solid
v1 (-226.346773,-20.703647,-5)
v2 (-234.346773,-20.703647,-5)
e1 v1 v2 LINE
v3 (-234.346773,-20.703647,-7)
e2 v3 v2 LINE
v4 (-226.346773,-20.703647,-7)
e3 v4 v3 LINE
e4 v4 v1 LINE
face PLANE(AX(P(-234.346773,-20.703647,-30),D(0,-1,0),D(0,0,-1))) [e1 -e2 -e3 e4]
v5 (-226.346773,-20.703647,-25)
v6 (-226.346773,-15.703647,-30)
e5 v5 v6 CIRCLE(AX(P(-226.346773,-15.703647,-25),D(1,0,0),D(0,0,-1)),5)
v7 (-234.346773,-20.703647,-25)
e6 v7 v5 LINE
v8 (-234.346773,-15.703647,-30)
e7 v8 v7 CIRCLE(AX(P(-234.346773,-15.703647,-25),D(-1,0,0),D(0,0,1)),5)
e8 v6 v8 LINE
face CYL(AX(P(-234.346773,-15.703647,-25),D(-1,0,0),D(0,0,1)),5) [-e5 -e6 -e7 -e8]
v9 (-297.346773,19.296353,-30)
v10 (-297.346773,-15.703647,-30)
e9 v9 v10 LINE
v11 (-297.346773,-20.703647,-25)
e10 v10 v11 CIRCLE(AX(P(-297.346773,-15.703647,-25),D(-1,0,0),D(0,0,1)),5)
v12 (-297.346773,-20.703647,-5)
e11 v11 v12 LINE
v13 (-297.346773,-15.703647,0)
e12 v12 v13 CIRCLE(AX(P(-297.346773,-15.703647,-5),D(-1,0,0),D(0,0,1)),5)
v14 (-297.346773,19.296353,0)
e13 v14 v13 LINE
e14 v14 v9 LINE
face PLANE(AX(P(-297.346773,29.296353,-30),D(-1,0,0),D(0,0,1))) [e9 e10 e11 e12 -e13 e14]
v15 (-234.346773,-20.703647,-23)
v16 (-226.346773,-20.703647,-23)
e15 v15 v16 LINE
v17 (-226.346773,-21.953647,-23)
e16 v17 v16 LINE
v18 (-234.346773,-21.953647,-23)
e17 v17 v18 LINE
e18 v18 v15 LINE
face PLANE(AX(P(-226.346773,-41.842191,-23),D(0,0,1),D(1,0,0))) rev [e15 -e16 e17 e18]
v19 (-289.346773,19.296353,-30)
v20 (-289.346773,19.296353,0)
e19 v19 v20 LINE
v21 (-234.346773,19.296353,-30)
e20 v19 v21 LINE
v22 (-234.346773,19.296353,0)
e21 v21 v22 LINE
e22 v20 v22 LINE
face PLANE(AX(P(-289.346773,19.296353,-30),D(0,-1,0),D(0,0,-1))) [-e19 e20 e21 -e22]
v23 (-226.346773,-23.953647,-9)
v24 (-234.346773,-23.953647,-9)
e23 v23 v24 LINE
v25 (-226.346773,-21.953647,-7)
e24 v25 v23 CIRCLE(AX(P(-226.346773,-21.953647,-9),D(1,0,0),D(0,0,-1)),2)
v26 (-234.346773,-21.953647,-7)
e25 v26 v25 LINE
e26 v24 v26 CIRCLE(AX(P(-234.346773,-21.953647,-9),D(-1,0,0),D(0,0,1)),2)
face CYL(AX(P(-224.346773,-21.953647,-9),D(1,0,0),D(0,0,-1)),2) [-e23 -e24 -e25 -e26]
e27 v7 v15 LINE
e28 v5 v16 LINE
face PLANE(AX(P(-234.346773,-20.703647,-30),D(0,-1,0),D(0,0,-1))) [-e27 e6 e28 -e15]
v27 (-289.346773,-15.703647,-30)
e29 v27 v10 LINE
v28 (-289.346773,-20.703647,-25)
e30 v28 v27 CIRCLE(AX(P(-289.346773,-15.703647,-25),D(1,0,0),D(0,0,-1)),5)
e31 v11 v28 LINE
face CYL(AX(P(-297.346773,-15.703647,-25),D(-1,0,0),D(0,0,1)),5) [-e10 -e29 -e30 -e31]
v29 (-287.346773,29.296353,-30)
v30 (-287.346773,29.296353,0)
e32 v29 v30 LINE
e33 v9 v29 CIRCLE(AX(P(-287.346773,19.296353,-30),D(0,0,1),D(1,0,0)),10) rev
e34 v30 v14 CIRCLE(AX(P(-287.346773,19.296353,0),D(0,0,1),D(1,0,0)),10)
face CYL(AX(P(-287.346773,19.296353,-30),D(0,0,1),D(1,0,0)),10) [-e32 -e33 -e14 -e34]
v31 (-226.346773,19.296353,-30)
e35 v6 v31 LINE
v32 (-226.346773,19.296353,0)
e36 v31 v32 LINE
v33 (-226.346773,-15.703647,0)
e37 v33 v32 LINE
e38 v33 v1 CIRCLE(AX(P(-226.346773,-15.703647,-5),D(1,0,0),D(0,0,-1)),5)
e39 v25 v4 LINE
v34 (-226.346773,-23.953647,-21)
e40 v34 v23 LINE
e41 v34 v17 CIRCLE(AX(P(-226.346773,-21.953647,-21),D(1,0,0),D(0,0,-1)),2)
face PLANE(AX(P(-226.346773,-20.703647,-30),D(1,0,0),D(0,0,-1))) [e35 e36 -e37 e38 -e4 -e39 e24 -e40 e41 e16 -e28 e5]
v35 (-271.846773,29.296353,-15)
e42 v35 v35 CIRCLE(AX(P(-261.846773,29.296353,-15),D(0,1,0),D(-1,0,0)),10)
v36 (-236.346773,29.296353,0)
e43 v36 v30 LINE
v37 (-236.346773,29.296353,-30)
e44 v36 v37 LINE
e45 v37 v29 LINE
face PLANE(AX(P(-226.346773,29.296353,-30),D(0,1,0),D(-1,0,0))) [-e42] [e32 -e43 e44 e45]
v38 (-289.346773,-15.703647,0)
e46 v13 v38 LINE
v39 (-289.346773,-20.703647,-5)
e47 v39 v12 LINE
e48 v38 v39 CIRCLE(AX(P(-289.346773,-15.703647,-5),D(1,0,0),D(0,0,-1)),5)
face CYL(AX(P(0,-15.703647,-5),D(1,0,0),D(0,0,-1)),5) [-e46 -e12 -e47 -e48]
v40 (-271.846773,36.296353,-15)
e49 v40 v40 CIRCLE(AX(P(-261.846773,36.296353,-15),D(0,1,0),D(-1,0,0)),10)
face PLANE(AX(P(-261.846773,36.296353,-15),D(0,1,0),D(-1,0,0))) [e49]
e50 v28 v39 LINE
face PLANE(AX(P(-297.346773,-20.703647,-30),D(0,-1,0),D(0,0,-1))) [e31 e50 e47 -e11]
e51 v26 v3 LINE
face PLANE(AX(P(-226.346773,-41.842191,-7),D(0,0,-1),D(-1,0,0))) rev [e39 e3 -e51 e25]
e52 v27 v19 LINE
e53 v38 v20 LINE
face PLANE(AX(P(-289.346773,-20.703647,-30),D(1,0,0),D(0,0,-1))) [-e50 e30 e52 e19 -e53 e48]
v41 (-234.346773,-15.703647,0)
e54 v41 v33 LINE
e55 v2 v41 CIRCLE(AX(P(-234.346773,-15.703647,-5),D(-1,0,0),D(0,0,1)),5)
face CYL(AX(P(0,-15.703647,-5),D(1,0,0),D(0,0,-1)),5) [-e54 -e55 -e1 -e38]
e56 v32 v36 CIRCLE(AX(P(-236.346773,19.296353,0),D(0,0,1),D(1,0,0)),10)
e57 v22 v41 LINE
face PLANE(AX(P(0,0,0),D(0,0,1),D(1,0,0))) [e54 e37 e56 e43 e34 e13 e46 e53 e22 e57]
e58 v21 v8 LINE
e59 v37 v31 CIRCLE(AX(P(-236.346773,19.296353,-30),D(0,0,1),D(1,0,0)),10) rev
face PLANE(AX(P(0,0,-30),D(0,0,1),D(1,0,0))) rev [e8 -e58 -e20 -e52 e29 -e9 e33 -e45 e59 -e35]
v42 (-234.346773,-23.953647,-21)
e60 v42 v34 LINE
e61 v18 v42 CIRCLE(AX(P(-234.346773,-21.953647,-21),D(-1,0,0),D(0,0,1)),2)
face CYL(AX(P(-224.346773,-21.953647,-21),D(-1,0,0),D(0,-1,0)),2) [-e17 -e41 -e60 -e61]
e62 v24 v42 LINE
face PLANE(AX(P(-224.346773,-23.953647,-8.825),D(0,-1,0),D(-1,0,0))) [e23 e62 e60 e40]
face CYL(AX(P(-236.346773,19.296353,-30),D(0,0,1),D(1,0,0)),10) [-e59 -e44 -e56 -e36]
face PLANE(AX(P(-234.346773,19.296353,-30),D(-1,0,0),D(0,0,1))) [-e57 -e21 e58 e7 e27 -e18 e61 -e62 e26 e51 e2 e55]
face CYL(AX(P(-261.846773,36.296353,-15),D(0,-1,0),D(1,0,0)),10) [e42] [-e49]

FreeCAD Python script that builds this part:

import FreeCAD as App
import Part
import Sketcher

V = App.Vector


def edges_at(feature, points):
    """Names of the edges that pass closest to the given points."""
    edges = feature.Shape.Edges
    near = lambda p: min(range(len(edges)), key=lambda i: edges[i].distToShape(Part.Vertex(*p))[0])
    return sorted({f"Edge{near(p) + 1}" for p in points})


def add_polygon(sketch, points):
    """Adds a closed chain of lines whose ends are joined by coincident constraints."""
    first, n = sketch.GeometryCount, len(points)
    for a, b in zip(points, points[1:] + points[:1]):
        sketch.addGeometry(Part.LineSegment(App.Vector(*a, 0), App.Vector(*b, 0)), False)
    for i in range(n):
        sketch.addConstraint(Sketcher.Constraint("Coincident", first + i, 2, first + (i + 1) % n, 1))

doc = App.newDocument("Part")
body = doc.addObject("PartDesign::Body", "Body")

sketch1 = body.newObject("Sketcher::SketchObject", "Sketch")
sketch1.AttachmentSupport = (doc.getObject("XY_Plane"), [""])
sketch1.MapMode = "FlatFace"
add_polygon(sketch1, [(-289.346773, -20.703647), (-289.346773, 19.296353), (-234.346773, 19.296353), (-234.346773, -20.703647), (-226.346773, -20.703647), (-226.346773, 29.296353), (-297.346773, 29.296353), (-297.346773, -20.703647)])
sketch1.addConstraint(Sketcher.Constraint("Vertical", 0))
sketch1.addConstraint(Sketcher.Constraint("Horizontal", 1))
sketch1.addConstraint(Sketcher.Constraint("Vertical", 2))
sketch1.addConstraint(Sketcher.Constraint("Horizontal", 3))
sketch1.addConstraint(Sketcher.Constraint("Vertical", 4))
sketch1.addConstraint(Sketcher.Constraint("Horizontal", 5))
sketch1.addConstraint(Sketcher.Constraint("Vertical", 6))
sketch1.addConstraint(Sketcher.Constraint("Horizontal", 7))
sketch1.addConstraint(Sketcher.Constraint("Horizontal", 3, 2, 6, 2))
sketch1.addConstraint(Sketcher.Constraint("Equal", 3, 7))
sketch1.addConstraint(Sketcher.Constraint("DistanceX", 1, 1, 1, 2, 55.0))
sketch1.addConstraint(Sketcher.Constraint("DistanceX", 3, 1, 3, 2, 8.0))
sketch1.addConstraint(Sketcher.Constraint("DistanceY", 0, 1, 0, 2, 40.0))
sketch1.addConstraint(Sketcher.Constraint("DistanceY", 4, 1, 4, 2, 50.0))
sketch1.addConstraint(Sketcher.Constraint("DistanceX", 0, 2, -1, 1, 289.346773))
sketch1.addConstraint(Sketcher.Constraint("DistanceY", -1, 1, 0, 2, 19.296353))
pad1 = body.newObject("PartDesign::Pad", "Pad")
pad1.Profile = sketch1
pad1.Length = 30
pad1.Reversed = True

sketch2 = body.newObject("Sketcher::SketchObject", "Sketch001")
sketch2.AttachmentSupport = (doc.getObject("XZ_Plane"), [""])
sketch2.MapMode = "FlatFace"
sketch2.AttachmentOffset = App.Placement(V(0, 0, -29.296353), App.Rotation())
sketch2.addGeometry(Part.Circle(V(-261.846773, -15, 0), V(0, 0, 1), 10), False)
sketch2.addConstraint(Sketcher.Constraint("Diameter", 0, 20.0))
sketch2.addConstraint(Sketcher.Constraint("DistanceY", 0, 3, -1, 1, 15.0))
sketch2.addConstraint(Sketcher.Constraint("DistanceX", 0, 3, -1, 1, 261.846773))
pad2 = body.newObject("PartDesign::Pad", "Pad001")
pad2.Profile = sketch2
pad2.Length = 7
pad2.Reversed = True
doc.recompute()

fillet = body.newObject("PartDesign::Fillet", "Fillet")
fillet.Base = (pad2, edges_at(pad2, [
    (-293.347, -20.704, 0),
    (-293.347, -20.704, -30),
    (-230.347, -20.704, 0),
    (-230.347, -20.704, -30),
]))
fillet.Radius = 5
doc.recompute()

fillet2 = body.newObject("PartDesign::Fillet", "Fillet001")
fillet2.Base = (fillet, edges_at(fillet, [(-297.347, 29.296, -15), (-226.347, 29.296, -15)]))
fillet2.Radius = 10

sketch3 = body.newObject("Sketcher::SketchObject", "Sketch002")
sketch3.AttachmentSupport = (doc.getObject("XZ_Plane"), [""])
sketch3.MapMode = "FlatFace"
sketch3.AttachmentOffset = App.Placement(V(0, 0, 20.703647), App.Rotation())
add_polygon(sketch3, [(-234.346773, -7), (-234.346773, -23), (-226.346773, -23), (-226.346773, -7)])
sketch3.addConstraint(Sketcher.Constraint("Vertical", 0))
sketch3.addConstraint(Sketcher.Constraint("Horizontal", 1))
sketch3.addConstraint(Sketcher.Constraint("Vertical", 2))
sketch3.addConstraint(Sketcher.Constraint("Horizontal", 3))
sketch3.addConstraint(Sketcher.Constraint("DistanceX", 1, 1, 1, 2, 8.0))
sketch3.addConstraint(Sketcher.Constraint("DistanceY", 0, 2, 0, 1, 16.0))
sketch3.addConstraint(Sketcher.Constraint("DistanceY", 0, 2, -1, 1, 23.0))
sketch3.addConstraint(Sketcher.Constraint("DistanceX", 0, 2, -1, 1, 234.346773))
pad3 = body.newObject("PartDesign::Pad", "Pad002")
pad3.Profile = sketch3
pad3.Length = 3.25
doc.recompute()

fillet3 = body.newObject("PartDesign::Fillet", "Fillet002")
fillet3.Base = (pad3, edges_at(pad3, [(-230.347, -23.954, -7), (-230.347, -23.954, -23)]))
fillet3.Radius = 2

doc.recompute()
